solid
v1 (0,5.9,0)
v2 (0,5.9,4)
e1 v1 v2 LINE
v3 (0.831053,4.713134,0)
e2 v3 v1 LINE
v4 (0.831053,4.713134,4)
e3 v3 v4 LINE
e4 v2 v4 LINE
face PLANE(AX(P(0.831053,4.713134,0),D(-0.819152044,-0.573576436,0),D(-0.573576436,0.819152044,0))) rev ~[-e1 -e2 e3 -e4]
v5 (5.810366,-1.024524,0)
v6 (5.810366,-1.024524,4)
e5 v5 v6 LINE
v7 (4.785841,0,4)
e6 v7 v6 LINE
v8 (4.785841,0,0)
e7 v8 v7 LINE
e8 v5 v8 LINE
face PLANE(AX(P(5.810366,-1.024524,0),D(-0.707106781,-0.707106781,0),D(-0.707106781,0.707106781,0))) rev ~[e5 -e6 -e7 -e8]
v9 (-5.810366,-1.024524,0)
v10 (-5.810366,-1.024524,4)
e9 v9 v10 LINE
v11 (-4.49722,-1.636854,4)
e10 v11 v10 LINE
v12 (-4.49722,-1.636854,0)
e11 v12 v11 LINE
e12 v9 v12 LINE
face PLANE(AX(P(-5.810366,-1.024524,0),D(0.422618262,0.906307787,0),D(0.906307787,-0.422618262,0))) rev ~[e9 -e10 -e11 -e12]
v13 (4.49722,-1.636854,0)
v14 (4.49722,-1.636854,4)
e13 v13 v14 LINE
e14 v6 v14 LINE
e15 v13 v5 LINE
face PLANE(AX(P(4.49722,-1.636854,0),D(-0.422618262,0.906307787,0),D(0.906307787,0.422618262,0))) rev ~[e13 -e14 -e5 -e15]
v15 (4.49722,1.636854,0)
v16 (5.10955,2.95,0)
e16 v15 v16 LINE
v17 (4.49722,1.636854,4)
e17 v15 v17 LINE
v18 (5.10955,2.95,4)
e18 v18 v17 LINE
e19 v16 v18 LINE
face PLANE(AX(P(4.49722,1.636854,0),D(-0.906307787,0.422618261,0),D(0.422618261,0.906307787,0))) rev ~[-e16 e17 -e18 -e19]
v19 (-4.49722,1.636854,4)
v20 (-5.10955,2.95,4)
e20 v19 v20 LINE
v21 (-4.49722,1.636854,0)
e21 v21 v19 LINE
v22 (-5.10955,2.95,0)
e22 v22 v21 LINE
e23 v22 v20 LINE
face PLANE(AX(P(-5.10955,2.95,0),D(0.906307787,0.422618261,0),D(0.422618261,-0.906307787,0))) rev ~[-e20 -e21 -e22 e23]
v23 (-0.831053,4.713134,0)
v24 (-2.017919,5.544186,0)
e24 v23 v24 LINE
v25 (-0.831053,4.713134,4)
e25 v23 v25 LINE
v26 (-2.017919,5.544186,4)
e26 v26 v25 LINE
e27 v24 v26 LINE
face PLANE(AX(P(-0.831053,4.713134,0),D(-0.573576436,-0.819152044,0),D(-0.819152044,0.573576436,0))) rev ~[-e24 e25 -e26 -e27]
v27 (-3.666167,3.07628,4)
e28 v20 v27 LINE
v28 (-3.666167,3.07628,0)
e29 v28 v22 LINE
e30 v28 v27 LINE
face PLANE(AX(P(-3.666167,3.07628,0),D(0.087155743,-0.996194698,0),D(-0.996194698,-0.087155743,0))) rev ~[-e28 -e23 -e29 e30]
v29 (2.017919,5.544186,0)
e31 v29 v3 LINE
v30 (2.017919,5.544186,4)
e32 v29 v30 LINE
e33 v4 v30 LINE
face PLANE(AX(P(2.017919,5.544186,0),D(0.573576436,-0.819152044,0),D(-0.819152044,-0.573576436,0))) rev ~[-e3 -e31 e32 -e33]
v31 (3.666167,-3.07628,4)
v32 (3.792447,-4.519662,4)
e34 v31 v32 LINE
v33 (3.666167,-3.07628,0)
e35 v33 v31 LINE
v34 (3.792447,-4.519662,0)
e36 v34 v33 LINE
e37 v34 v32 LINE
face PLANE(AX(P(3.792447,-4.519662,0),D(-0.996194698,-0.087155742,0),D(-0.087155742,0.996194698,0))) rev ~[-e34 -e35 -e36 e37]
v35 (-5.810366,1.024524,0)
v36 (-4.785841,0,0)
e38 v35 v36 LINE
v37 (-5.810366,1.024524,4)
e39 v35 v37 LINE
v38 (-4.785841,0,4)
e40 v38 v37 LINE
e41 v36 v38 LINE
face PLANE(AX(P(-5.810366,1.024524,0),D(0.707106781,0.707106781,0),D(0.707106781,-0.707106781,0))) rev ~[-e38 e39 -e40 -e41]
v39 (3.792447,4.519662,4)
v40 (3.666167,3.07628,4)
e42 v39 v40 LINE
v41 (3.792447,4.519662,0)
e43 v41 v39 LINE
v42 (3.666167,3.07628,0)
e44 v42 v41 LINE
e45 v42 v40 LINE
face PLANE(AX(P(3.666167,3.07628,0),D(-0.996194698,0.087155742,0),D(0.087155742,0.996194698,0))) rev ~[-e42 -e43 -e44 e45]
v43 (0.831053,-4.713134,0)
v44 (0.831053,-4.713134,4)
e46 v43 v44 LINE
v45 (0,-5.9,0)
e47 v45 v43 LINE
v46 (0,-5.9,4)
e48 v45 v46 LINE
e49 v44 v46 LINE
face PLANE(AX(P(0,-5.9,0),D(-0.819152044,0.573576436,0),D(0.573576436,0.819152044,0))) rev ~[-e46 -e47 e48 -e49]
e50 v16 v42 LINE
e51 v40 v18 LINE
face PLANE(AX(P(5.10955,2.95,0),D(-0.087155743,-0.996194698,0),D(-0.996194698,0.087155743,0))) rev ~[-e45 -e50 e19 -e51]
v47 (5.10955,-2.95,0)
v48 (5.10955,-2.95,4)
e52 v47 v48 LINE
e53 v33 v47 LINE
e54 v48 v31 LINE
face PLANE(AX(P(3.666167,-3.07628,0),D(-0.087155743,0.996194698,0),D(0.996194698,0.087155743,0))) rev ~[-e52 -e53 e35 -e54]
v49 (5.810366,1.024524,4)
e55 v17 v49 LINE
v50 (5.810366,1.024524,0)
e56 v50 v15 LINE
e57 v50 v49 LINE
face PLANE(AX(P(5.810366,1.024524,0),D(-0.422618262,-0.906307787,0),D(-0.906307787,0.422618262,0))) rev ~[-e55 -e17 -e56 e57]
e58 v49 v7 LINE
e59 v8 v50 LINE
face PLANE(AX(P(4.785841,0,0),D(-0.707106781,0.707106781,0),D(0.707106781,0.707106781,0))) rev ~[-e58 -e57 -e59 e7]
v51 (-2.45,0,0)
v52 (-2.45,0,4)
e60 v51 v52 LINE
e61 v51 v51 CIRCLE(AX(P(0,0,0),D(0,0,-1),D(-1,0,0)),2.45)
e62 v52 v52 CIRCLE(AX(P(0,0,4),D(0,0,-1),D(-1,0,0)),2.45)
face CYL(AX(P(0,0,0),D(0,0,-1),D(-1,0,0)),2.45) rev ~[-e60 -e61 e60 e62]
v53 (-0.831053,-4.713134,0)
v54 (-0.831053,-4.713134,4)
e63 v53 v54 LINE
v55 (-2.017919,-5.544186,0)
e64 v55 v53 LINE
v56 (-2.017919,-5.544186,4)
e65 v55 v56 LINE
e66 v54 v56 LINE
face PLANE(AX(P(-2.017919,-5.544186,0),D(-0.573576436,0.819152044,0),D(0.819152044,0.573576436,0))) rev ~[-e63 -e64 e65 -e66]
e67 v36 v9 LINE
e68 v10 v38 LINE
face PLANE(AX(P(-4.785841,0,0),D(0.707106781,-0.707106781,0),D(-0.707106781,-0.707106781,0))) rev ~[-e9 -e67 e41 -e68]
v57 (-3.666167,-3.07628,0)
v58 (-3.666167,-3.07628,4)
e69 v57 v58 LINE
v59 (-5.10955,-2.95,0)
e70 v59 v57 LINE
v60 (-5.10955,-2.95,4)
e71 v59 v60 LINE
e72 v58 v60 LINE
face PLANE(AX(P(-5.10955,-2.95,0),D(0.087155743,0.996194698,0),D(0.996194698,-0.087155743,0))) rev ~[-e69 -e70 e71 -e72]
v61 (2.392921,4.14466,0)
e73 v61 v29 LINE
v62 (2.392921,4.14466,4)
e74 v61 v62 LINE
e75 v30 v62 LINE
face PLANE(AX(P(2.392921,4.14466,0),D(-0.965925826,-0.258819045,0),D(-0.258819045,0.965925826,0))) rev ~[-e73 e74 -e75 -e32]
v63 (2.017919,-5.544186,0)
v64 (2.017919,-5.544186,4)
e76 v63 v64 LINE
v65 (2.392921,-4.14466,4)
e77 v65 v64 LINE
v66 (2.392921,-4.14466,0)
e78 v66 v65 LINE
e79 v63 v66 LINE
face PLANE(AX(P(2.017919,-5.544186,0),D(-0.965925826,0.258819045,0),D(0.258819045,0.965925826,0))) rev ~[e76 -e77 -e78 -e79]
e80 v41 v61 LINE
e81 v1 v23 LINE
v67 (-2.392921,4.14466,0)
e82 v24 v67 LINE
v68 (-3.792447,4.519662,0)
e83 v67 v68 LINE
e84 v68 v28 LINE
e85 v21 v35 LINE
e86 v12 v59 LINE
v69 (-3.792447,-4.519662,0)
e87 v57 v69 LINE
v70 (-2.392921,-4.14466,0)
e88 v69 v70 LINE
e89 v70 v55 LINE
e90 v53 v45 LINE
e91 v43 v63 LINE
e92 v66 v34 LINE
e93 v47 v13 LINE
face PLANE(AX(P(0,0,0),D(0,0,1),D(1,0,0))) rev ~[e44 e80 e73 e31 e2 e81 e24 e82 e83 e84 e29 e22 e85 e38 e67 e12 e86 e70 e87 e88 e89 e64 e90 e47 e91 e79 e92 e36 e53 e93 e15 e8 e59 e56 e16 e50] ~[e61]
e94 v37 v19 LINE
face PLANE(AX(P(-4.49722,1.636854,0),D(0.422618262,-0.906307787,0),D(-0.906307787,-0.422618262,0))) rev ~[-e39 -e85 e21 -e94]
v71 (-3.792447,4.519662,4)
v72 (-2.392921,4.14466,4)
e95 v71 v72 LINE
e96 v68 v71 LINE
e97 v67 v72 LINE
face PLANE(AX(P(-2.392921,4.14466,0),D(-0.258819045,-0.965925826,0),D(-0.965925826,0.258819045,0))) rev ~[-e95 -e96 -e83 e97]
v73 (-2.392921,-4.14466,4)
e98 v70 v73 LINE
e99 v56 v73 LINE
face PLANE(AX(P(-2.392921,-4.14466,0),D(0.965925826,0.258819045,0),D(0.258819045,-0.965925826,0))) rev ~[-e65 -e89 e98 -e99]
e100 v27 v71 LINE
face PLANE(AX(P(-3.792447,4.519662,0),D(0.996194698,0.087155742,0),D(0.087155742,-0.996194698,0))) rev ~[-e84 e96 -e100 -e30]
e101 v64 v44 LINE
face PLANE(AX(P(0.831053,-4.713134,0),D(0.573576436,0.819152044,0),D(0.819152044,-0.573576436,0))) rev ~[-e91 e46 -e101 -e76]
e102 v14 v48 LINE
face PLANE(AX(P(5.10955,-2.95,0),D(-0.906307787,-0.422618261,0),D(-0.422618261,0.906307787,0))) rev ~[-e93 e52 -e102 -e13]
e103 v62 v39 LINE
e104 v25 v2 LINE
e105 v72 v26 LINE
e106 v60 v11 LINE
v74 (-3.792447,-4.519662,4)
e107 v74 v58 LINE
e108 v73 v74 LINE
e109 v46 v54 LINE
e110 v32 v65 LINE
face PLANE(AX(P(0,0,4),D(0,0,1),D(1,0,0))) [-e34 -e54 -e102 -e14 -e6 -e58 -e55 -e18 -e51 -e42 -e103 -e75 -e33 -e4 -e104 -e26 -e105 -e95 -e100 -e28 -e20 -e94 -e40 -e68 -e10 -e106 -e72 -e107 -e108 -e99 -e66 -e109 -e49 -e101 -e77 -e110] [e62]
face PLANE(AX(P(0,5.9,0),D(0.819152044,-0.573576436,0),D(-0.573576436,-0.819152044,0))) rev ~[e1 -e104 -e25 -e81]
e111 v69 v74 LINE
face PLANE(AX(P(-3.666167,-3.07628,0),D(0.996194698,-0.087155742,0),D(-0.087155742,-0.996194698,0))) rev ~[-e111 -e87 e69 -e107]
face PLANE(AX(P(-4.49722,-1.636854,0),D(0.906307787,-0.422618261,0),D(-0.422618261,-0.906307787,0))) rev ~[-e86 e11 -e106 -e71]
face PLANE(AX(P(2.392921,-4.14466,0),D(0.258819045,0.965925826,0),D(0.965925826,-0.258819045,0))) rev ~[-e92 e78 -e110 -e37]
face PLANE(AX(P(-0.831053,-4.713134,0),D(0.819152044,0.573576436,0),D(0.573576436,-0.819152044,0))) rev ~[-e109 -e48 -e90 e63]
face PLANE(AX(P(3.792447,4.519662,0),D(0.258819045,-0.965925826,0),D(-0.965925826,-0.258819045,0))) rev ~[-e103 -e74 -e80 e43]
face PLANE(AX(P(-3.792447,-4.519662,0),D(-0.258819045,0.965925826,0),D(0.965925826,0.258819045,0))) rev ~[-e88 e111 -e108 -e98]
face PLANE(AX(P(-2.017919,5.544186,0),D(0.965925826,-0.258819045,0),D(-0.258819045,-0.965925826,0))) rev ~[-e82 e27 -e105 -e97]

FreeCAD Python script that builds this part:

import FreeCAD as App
import Part
import Sketcher
Q = App.Units.Quantity


def add_polygon(sketch, points):
    """Adds a closed chain of lines whose ends are joined by coincident constraints."""
    first, n = sketch.GeometryCount, len(points)
    for a, b in zip(points, points[1:] + points[:1]):
        sketch.addGeometry(Part.LineSegment(App.Vector(*a, 0), App.Vector(*b, 0)), False)
    for i in range(n):
        sketch.addConstraint(Sketcher.Constraint("Coincident", first + i, 2, first + (i + 1) % n, 1))

doc = App.newDocument("Part")
body = doc.addObject("PartDesign::Body", "Body")

# Sketch on XY plane
sketch1 = doc.addObject("Sketcher::SketchObject", "Sketch")
body.addObject(sketch1)
sketch1.AttachmentSupport = (doc.XY_Plane, [""])
sketch1.MapMode = "FlatFace"
sketch1.addGeometry(Part.Circle(App.Vector(0, 0, 0), App.Vector(0, 0, 1), 6), False)
sketch1.addConstraint([
    Sketcher.Constraint("Coincident", 0, 3, -1, 1),
    Sketcher.Constraint("Diameter", 0, Q("11.8 mm")),
])
pad1 = doc.addObject("PartDesign::Pad", "Pad")
body.addObject(pad1)
pad1.Profile = sketch1
pad1.Length = 4

# Sketch on XY plane
sketch2 = doc.addObject("Sketcher::SketchObject", "Sketch001")
body.addObject(sketch2)
sketch2.AttachmentSupport = (doc.XY_Plane, [""])
sketch2.MapMode = "FlatFace"
sketch2.addGeometry(Part.Circle(App.Vector(0, 0, 0), App.Vector(0, 0, 1), 2.5), False)
sketch2.addConstraint([
    Sketcher.Constraint("Coincident", 0, 3, -1, 1),
    Sketcher.Constraint("Diameter", 0, Q("4.9 mm")),
])
pocket1 = doc.addObject("PartDesign::Pocket", "Pocket")
body.addObject(pocket1)
pocket1.Profile = sketch2
pocket1.Length = 4
pocket1.Reversed = True

# Sketch on XY plane
sketch3 = doc.addObject("Sketcher::SketchObject", "Sketch002")
body.addObject(sketch3)
sketch3.AttachmentSupport = (doc.XY_Plane, [""])
sketch3.MapMode = "FlatFace"
sketch3.addGeometry(Part.Circle(App.Vector(0, 0, 0), App.Vector(0, 0, 1), 6.9), False)  # 0
add_polygon(sketch3, [(0.8, 4.7), (0, 5.9), (-0.8, 4.7), (-2, 5.5), (-2.4, 4.1), (-3.8, 4.5), (-3.7, 3.1), (-5.1, 3), (-4.5, 1.6), (-5.8, 1), (-4.8, 0), (-5.8, -1), (-4.5, -1.6), (-5.1, -3), (-3.7, -3.1), (-3.8, -4.5), (-2.4, -4.1), (-2, -5.5), (-0.8, -4.7), (0, -5.9), (0.8, -4.7), (2, -5.5), (2.4, -4.1), (3.8, -4.5), (3.7, -3.1), (5.1, -3), (4.5, -1.6), (5.8, -1), (4.8, 0), (5.8, 1), (4.5, 1.6), (5.1, 3), (3.7, 3.1), (3.8, 4.5), (2.4, 4.1), (2, 5.5)])  # lines 1-36
sketch3.addConstraint([
    Sketcher.Constraint("Coincident", 0, 3, -1, 1),
    Sketcher.Constraint("Symmetric", 1, 2, 19, 2, -1, 1),
    Sketcher.Constraint("Symmetric", 2, 2, 20, 2, -1, 1),
    Sketcher.Constraint("Symmetric", 3, 2, 21, 2, -1, 1),
    Sketcher.Constraint("Symmetric", 4, 2, 22, 2, -1, 1),
    Sketcher.Constraint("Symmetric", 5, 2, 23, 2, -1, 1),
    Sketcher.Constraint("Symmetric", 6, 2, 24, 2, -1, 1),
    Sketcher.Constraint("Symmetric", 7, 2, 25, 2, -1, 1),
    Sketcher.Constraint("Symmetric", 8, 2, 26, 2, -1, 1),
    Sketcher.Constraint("Symmetric", 9, 2, 27, 2, -1, 1),
    Sketcher.Constraint("Symmetric", 10, 2, 28, 2, -1, 1),
    Sketcher.Constraint("Symmetric", 11, 2, 29, 2, -1, 1),
    Sketcher.Constraint("Symmetric", 12, 2, 30, 2, -1, 1),
    Sketcher.Constraint("Symmetric", 13, 2, 31, 2, -1, 1),
    Sketcher.Constraint("Symmetric", 14, 2, 32, 2, -1, 1),
    Sketcher.Constraint("Symmetric", 15, 2, 33, 2, -1, 1),
    Sketcher.Constraint("Symmetric", 16, 2, 34, 2, -1, 1),
    Sketcher.Constraint("Symmetric", 17, 2, 35, 2, -1, 1),
    Sketcher.Constraint("Symmetric", 18, 2, 36, 2, -1, 1),
    Sketcher.Constraint("Symmetric", 18, 2, 20, 2, -2),
    Sketcher.Constraint("Symmetric", 17, 2, 21, 2, -2),
    Sketcher.Constraint("Symmetric", 16, 2, 22, 2, -2),
    Sketcher.Constraint("Symmetric", 15, 2, 23, 2, -2),
    Sketcher.Constraint("Symmetric", 14, 2, 24, 2, -2),
    Sketcher.Constraint("Symmetric", 13, 2, 25, 2, -2),
    Sketcher.Constraint("Symmetric", 12, 2, 26, 2, -2),
    Sketcher.Constraint("Symmetric", 11, 2, 27, 2, -2),
    Sketcher.Constraint("PointOnObject", 1, 2, -2),
    Sketcher.Constraint("PointOnObject", 10, 2, -1),
    Sketcher.Constraint("Perpendicular", 2, 3),
    Sketcher.Constraint("Perpendicular", 4, 5),
    Sketcher.Constraint("Perpendicular", 6, 7),
    Sketcher.Constraint("Perpendicular", 8, 9),
    Sketcher.Constraint("Perpendicular", 10, 11),
    Sketcher.Constraint("Equal", 2, 3),
    Sketcher.Constraint("Equal", 3, 4),
    Sketcher.Constraint("Equal", 4, 5),
    Sketcher.Constraint("Equal", 5, 6),
    Sketcher.Constraint("Equal", 6, 7),
    Sketcher.Constraint("Equal", 7, 8),
    Sketcher.Constraint("Equal", 8, 9),
    Sketcher.Constraint("Equal", 9, 10),
    Sketcher.Constraint("Angle", 1, Q("125 deg")),
    Sketcher.Constraint("Angle", 4, Q("-105 deg")),
    Sketcher.Constraint("Angle", 6, Q("-85 deg")),
    Sketcher.Constraint("Angle", 8, Q("-65 deg")),
    Sketcher.Constraint("DistanceY", -1, 1, 1, 2, Q("5.9 mm")),
    Sketcher.Constraint("Diameter", 0, Q("13.83182 mm")),
])
pocket2 = doc.addObject("PartDesign::Pocket", "Pocket001")
body.addObject(pocket2)
pocket2.Profile = sketch3
pocket2.Length = 6
pocket2.Reversed = True

doc.recompute()
